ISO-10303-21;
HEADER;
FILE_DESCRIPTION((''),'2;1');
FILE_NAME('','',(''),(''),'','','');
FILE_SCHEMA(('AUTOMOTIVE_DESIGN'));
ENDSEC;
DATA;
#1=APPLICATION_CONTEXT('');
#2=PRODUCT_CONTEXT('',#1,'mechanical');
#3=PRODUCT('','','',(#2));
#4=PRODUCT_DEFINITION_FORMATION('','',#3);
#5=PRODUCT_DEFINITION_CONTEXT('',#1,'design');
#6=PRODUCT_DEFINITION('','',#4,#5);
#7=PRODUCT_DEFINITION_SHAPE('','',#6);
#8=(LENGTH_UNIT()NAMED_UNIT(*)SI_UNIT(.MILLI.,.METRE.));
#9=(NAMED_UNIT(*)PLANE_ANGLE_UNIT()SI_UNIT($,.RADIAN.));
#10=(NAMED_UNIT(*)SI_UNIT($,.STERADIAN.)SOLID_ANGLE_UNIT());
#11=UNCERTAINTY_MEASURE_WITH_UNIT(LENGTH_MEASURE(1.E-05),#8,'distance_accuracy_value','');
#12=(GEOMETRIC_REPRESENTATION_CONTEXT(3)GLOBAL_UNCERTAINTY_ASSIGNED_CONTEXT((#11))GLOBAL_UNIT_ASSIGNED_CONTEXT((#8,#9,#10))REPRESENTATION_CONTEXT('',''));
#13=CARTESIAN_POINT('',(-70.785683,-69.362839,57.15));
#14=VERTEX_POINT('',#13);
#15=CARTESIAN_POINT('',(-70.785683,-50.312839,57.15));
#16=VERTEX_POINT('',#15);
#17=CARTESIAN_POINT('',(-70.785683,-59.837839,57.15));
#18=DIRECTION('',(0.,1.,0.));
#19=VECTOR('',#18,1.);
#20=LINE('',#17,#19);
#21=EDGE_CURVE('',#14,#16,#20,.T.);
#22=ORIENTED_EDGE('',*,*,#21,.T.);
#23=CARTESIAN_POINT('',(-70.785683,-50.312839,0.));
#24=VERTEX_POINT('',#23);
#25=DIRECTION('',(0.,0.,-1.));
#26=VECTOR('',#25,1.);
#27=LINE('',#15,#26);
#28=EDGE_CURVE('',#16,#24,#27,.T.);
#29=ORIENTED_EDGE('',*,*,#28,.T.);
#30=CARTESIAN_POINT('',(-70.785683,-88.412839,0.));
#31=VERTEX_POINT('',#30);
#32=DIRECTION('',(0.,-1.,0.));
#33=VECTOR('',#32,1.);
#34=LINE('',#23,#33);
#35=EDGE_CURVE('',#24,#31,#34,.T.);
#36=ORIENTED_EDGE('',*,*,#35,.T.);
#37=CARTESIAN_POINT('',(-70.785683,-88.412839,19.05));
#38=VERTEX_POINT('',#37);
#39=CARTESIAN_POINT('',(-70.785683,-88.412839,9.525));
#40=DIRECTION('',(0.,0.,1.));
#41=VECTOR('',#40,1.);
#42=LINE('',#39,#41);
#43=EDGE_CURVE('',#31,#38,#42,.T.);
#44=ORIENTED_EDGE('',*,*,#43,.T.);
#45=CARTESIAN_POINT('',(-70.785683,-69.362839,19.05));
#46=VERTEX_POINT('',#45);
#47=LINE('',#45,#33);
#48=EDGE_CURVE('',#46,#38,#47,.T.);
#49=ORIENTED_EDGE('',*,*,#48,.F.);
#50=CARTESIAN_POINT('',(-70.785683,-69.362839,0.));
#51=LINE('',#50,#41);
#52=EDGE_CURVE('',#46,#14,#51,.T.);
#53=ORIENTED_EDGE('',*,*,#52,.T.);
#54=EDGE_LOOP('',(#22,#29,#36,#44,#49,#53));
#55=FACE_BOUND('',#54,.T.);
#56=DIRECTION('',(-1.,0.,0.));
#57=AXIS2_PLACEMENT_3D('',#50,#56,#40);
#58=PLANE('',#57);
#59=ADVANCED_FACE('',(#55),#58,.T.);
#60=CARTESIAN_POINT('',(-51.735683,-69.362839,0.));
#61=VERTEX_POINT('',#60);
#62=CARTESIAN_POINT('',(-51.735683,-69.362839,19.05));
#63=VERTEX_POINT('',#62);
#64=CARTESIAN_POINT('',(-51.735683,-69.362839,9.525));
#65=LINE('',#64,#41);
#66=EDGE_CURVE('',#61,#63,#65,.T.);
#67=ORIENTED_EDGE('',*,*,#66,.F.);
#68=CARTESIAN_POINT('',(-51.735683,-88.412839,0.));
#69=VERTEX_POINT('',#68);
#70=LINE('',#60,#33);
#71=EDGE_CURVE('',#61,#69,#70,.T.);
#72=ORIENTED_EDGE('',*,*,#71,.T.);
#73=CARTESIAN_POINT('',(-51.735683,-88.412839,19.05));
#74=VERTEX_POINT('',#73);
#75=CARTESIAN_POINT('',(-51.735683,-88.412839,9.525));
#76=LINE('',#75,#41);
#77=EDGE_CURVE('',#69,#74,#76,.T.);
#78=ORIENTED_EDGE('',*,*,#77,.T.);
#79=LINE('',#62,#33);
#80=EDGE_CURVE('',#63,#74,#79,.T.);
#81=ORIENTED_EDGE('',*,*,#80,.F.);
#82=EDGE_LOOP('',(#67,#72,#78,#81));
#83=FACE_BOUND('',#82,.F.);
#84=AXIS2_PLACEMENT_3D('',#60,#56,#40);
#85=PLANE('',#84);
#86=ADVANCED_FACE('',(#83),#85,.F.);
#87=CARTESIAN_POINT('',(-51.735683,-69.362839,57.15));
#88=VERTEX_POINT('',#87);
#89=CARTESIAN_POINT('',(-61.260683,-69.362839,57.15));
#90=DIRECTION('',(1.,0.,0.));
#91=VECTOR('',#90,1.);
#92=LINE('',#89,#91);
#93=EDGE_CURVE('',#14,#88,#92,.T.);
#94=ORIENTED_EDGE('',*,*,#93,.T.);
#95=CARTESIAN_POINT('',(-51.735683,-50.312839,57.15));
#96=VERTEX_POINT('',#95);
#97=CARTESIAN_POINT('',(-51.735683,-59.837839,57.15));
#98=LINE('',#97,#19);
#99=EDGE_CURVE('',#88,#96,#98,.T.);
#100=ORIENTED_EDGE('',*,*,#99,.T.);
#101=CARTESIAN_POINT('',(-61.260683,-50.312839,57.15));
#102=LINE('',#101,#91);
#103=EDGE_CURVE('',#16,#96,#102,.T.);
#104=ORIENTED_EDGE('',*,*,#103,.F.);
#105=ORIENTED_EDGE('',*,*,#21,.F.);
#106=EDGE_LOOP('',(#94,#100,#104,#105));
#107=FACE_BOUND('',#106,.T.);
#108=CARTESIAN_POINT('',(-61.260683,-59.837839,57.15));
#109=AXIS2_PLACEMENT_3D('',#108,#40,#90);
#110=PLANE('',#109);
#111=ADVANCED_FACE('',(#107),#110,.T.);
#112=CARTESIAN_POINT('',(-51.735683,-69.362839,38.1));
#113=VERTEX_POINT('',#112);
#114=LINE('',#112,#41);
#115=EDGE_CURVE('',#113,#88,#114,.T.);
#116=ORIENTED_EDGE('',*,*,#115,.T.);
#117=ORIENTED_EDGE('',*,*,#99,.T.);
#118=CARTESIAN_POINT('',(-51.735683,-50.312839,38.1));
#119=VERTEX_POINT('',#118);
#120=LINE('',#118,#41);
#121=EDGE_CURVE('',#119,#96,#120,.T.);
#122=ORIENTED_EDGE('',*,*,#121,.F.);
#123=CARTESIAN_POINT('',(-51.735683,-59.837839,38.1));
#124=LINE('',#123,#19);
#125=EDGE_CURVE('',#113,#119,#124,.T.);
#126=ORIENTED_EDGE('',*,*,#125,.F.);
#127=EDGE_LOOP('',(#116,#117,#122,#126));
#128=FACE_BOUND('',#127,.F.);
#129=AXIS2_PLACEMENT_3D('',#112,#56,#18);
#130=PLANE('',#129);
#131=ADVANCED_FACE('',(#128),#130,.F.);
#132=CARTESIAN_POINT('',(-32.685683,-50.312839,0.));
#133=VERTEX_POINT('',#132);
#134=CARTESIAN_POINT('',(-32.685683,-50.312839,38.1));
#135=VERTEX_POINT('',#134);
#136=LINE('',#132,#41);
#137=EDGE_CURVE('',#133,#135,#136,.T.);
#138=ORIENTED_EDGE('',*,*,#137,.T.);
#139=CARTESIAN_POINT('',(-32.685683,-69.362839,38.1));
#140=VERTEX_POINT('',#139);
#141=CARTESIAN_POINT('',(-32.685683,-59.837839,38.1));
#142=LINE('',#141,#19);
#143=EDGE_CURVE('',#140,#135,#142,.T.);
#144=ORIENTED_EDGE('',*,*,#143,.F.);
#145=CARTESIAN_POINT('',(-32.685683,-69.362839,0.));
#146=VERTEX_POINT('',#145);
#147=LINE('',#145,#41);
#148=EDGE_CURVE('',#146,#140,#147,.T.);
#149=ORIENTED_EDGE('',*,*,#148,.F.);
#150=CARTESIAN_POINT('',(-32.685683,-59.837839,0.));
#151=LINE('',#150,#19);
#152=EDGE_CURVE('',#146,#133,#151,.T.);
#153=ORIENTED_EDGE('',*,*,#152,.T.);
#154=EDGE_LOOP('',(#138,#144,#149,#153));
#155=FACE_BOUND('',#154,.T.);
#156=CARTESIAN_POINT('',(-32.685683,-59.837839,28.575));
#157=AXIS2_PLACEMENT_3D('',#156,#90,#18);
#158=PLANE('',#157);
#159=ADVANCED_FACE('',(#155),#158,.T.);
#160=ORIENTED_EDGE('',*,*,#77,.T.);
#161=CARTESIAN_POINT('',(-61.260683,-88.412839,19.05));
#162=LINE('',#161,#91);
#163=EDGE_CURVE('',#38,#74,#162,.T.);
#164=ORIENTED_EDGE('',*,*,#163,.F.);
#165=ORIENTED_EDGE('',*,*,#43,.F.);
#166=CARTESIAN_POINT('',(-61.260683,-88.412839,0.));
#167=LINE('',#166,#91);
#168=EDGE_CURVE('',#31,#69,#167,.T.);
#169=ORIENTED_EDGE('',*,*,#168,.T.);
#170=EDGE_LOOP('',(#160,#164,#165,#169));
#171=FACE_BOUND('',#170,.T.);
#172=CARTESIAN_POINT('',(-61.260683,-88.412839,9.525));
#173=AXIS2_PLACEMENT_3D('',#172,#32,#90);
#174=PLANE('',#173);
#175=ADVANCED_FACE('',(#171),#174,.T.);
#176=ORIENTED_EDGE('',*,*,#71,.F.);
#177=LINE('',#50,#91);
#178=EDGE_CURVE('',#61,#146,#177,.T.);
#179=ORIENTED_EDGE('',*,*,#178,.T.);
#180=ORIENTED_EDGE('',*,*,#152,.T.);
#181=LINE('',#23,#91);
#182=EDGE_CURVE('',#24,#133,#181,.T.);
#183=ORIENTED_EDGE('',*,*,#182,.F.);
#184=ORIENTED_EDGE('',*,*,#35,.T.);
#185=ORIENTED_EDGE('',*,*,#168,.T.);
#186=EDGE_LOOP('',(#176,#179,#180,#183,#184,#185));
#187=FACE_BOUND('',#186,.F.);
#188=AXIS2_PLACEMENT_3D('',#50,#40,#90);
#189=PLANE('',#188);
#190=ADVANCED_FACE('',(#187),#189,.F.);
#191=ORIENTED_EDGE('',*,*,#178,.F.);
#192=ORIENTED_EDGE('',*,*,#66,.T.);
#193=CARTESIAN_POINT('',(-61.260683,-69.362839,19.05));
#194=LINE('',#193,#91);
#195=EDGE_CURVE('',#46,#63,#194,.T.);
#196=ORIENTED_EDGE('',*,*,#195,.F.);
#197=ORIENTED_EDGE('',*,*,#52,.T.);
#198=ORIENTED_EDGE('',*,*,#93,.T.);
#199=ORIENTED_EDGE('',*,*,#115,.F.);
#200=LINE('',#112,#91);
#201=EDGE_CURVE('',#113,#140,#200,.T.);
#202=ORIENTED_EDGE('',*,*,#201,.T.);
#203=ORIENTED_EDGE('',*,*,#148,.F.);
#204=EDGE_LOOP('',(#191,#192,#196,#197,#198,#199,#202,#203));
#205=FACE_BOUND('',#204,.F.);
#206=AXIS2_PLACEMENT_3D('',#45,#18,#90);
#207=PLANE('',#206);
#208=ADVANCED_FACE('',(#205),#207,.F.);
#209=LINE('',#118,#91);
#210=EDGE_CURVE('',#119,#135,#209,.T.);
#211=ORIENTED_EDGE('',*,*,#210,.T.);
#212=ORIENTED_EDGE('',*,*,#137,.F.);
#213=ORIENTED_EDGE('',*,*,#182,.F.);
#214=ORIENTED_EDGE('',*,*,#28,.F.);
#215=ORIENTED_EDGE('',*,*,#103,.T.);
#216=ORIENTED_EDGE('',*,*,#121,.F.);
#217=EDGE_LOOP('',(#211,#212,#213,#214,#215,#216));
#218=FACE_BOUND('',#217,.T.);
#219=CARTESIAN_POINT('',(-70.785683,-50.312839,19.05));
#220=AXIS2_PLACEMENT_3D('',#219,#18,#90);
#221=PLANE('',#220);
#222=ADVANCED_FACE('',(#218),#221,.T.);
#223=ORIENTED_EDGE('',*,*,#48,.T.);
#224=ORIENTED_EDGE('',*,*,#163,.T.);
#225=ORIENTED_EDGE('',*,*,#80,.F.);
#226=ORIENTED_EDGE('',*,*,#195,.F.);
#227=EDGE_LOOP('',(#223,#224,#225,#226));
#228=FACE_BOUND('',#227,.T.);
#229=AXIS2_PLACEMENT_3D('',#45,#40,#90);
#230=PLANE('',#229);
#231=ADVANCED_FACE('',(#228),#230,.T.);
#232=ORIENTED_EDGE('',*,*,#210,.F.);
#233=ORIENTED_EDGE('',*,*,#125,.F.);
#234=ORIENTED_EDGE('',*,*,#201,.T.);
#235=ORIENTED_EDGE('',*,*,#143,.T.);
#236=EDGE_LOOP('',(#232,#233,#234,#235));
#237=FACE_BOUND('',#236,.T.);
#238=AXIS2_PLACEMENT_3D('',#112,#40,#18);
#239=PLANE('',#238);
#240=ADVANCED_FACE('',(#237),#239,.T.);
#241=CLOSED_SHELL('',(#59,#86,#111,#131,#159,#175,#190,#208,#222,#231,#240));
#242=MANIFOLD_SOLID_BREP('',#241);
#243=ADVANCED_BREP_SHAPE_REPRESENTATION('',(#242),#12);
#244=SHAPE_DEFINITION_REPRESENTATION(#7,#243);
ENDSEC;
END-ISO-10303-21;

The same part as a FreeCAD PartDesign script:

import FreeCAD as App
import Part
import Sketcher
from FreeCAD import Vector
Q = App.Units.Quantity


def add_polygon(sketch, points):
    """Adds a closed chain of lines whose ends are joined by coincident constraints."""
    first, n = sketch.GeometryCount, len(points)
    for a, b in zip(points, points[1:] + points[:1]):
        sketch.addGeometry(Part.LineSegment(App.Vector(*a, 0), App.Vector(*b, 0)), False)
    for i in range(n):
        sketch.addConstraint(Sketcher.Constraint("Coincident", first + i, 2, first + (i + 1) % n, 1))

doc = App.newDocument("Part")
body = doc.addObject("PartDesign::Body", "Body")

# Sketch on XY plane
sketch1 = body.newObject("Sketcher::SketchObject", "Sketch")
sketch1.AttachmentSupport = (doc.getObject("XY_Plane"), [""])
sketch1.MapMode = "FlatFace"
add_polygon(sketch1, [(-71, -50), (-71, -69), (-52, -69), (-52, -50)])  # lines 0-3
sketch1.addConstraint(Sketcher.Constraint("Vertical", 0))
sketch1.addConstraint(Sketcher.Constraint("Horizontal", 1))
sketch1.addConstraint(Sketcher.Constraint("Vertical", 2))
sketch1.addConstraint(Sketcher.Constraint("Horizontal", 3))
sketch1.addConstraint(Sketcher.Constraint("Equal", 3, 0))
sketch1.addConstraint(Sketcher.Constraint("DistanceX", 1, 1, 1, 2, Q("0.75 in")))
sketch1.addConstraint(Sketcher.Constraint("DistanceY", 0, 2, -1, 1, Q("69.362839 mm")))
sketch1.addConstraint(Sketcher.Constraint("DistanceX", 0, 2, -1, 1, Q("70.785683 mm")))
pad1 = body.newObject("PartDesign::Pad", "Pad")
pad1.Profile = sketch1
pad1.Length = Q("0.75 in")

# Sketch on YZ plane
sketch2 = body.newObject("Sketcher::SketchObject", "Sketch001")
sketch2.AttachmentSupport = (doc.getObject("YZ_Plane"), [""])
sketch2.MapMode = "FlatFace"
sketch2.AttachmentOffset = App.Placement(Vector(0, 0, -51.735683), App.Rotation())
add_polygon(sketch2, [(-69, 19), (-69, 0), (-50, 0), (-50, 19)])  # lines 0-3
sketch2.addConstraint(Sketcher.Constraint("Vertical", 0))
sketch2.addConstraint(Sketcher.Constraint("Horizontal", 1))
sketch2.addConstraint(Sketcher.Constraint("Vertical", 2))
sketch2.addConstraint(Sketcher.Constraint("Horizontal", 3))
sketch2.addConstraint(Sketcher.Constraint("PointOnObject", 0, 2, -1))
sketch2.addConstraint(Sketcher.Constraint("Equal", 3, 0))
sketch2.addConstraint(Sketcher.Constraint("DistanceX", 1, 1, 1, 2, Q("0.75 in")))
sketch2.addConstraint(Sketcher.Constraint("DistanceX", 0, 2, -1, 1, Q("69.362839 mm")))
pad2 = body.newObject("PartDesign::Pad", "Pad001")
pad2.Profile = sketch2
pad2.Length = Q("0.75 in")
body2 = doc.addObject("PartDesign::Body", "Body001")

# Sketch on XY plane
sketch3 = body2.newObject("Sketcher::SketchObject", "Sketch002")
sketch3.AttachmentSupport = (doc.getObject("XY_Plane001"), [""])
sketch3.MapMode = "FlatFace"
sketch3.AttachmentOffset = App.Placement(Vector(0, 0, 1.5 * 25.4), App.Rotation())
add_polygon(sketch3, [(-71, -50), (-71, -69), (-52, -69), (-52, -50)])  # lines 0-3
sketch3.addConstraint(Sketcher.Constraint("Vertical", 0))
sketch3.addConstraint(Sketcher.Constraint("Horizontal", 1))
sketch3.addConstraint(Sketcher.Constraint("Vertical", 2))
sketch3.addConstraint(Sketcher.Constraint("Horizontal", 3))
sketch3.addConstraint(Sketcher.Constraint("Equal", 3, 0))
sketch3.addConstraint(Sketcher.Constraint("DistanceX", 1, 1, 1, 2, Q("0.75 in")))
sketch3.addConstraint(Sketcher.Constraint("DistanceY", 0, 2, -1, 1, Q("69.362839 mm")))
sketch3.addConstraint(Sketcher.Constraint("DistanceX", 0, 2, -1, 1, Q("70.785683 mm")))
pad3 = body2.newObject("PartDesign::Pad", "Pad002")
pad3.Profile = sketch3
pad3.Length = Q("0.75 in")
body.AllowCompound = True
doc.recompute()

boolean = body.newObject("PartDesign::Boolean", "Boolean")
boolean.Type = "Fuse"
boolean.addObjects([body2])

# Sketch on YZ plane
sketch4 = body.newObject("Sketcher::SketchObject", "Sketch003")
sketch4.AttachmentSupport = (doc.getObject("YZ_Plane"), [""])
sketch4.MapMode = "FlatFace"
sketch4.AttachmentOffset = App.Placement(Vector(0, 0, -51.735683), App.Rotation())
add_polygon(sketch4, [(-69, 38), (-69, 19), (-50, 19), (-50, 38)])  # lines 0-3
sketch4.addConstraint(Sketcher.Constraint("Vertical", 0))
sketch4.addConstraint(Sketcher.Constraint("Horizontal", 1))
sketch4.addConstraint(Sketcher.Constraint("Vertical", 2))
sketch4.addConstraint(Sketcher.Constraint("Horizontal", 3))
sketch4.addConstraint(Sketcher.Constraint("Equal", 3, 0))
sketch4.addConstraint(Sketcher.Constraint("DistanceX", 1, 1, 1, 2, Q("0.75 in")))
sketch4.addConstraint(Sketcher.Constraint("DistanceY", -1, 1, 2, 2, Q("1.5 in")))
sketch4.addConstraint(Sketcher.Constraint("DistanceX", 0, 2, -1, 1, Q("69.362839 mm")))
pad4 = body.newObject("PartDesign::Pad", "Pad003")
pad4.Profile = sketch4
pad4.Length = Q("0.75 in")

# Sketch on XY plane
sketch5 = body.newObject("Sketcher::SketchObject", "Sketch004")
sketch5.AttachmentSupport = (doc.getObject("XY_Plane"), [""])
sketch5.MapMode = "FlatFace"
sketch5.AttachmentOffset = App.Placement(Vector(0, 0, 0.75 * 25.4), App.Rotation())
add_polygon(sketch5, [(-71, -50), (-71, -69), (-52, -69), (-52, -50)])  # lines 0-3
sketch5.addConstraint(Sketcher.Constraint("Vertical", 0))
sketch5.addConstraint(Sketcher.Constraint("Horizontal", 1))
sketch5.addConstraint(Sketcher.Constraint("Vertical", 2))
sketch5.addConstraint(Sketcher.Constraint("Horizontal", 3))
sketch5.addConstraint(Sketcher.Constraint("Equal", 3, 0))
sketch5.addConstraint(Sketcher.Constraint("DistanceX", 1, 1, 1, 2, Q("0.75 in")))
sketch5.addConstraint(Sketcher.Constraint("DistanceY", 0, 2, -1, 1, Q("69.362839 mm")))
sketch5.addConstraint(Sketcher.Constraint("DistanceX", 0, 2, -1, 1, Q("70.785683 mm")))
pad5 = body.newObject("PartDesign::Pad", "Pad004")
pad5.Profile = sketch5
pad5.Length = Q("0.75 in")

# Sketch on XZ plane
sketch6 = body.newObject("Sketcher::SketchObject", "Sketch005")
sketch6.AttachmentSupport = (doc.getObject("XZ_Plane"), [""])
sketch6.MapMode = "FlatFace"
sketch6.AttachmentOffset = App.Placement(Vector(0, 0, 69.362839), App.Rotation())
add_polygon(sketch6, [(-71, 19), (-71, 0), (-52, 0), (-52, 19)])  # lines 0-3
sketch6.addConstraint(Sketcher.Constraint("Vertical", 0))
sketch6.addConstraint(Sketcher.Constraint("Horizontal", 1))
sketch6.addConstraint(Sketcher.Constraint("Vertical", 2))
sketch6.addConstraint(Sketcher.Constraint("Horizontal", 3))
sketch6.addConstraint(Sketcher.Constraint("PointOnObject", 0, 2, -1))
sketch6.addConstraint(Sketcher.Constraint("Equal", 3, 0))
sketch6.addConstraint(Sketcher.Constraint("DistanceX", 1, 1, 1, 2, Q("0.75 in")))
sketch6.addConstraint(Sketcher.Constraint("DistanceX", 0, 2, -1, 1, Q("70.785683 mm")))
pad6 = body.newObject("PartDesign::Pad", "Pad005")
pad6.Profile = sketch6
pad6.Length = Q("0.75 in")

doc.recompute()
